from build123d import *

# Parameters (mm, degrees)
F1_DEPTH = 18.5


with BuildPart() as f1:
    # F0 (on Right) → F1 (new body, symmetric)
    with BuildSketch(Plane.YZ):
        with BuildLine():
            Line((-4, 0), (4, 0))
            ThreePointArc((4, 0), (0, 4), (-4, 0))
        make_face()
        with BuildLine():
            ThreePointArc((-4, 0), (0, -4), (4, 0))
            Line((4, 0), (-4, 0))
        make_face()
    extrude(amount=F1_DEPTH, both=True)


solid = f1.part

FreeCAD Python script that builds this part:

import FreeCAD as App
import Part
import Sketcher

V = App.Vector
Q = App.Units.Quantity

doc = App.newDocument("Part")
body = doc.addObject("PartDesign::Body", "Body")

# Sketch on YZ plane
sketch1 = body.newObject("Sketcher::SketchObject", "Sketch")
sketch1.AttachmentSupport = (doc.getObject("YZ_Plane"), [""])
sketch1.MapMode = "FlatFace"
sketch1.addGeometry(Part.Circle(V(0, 0, 0), V(0, 0, 1), 4), False)
sketch1.addConstraint(Sketcher.Constraint("Coincident", 0, 3, -1, 1))
sketch1.addConstraint(Sketcher.Constraint("Diameter", 0, Q("8 mm")))
pad1 = body.newObject("PartDesign::Pad", "Pad")
pad1.Profile = sketch1
pad1.Length = 37
pad1.Midplane = True

doc.recompute()
